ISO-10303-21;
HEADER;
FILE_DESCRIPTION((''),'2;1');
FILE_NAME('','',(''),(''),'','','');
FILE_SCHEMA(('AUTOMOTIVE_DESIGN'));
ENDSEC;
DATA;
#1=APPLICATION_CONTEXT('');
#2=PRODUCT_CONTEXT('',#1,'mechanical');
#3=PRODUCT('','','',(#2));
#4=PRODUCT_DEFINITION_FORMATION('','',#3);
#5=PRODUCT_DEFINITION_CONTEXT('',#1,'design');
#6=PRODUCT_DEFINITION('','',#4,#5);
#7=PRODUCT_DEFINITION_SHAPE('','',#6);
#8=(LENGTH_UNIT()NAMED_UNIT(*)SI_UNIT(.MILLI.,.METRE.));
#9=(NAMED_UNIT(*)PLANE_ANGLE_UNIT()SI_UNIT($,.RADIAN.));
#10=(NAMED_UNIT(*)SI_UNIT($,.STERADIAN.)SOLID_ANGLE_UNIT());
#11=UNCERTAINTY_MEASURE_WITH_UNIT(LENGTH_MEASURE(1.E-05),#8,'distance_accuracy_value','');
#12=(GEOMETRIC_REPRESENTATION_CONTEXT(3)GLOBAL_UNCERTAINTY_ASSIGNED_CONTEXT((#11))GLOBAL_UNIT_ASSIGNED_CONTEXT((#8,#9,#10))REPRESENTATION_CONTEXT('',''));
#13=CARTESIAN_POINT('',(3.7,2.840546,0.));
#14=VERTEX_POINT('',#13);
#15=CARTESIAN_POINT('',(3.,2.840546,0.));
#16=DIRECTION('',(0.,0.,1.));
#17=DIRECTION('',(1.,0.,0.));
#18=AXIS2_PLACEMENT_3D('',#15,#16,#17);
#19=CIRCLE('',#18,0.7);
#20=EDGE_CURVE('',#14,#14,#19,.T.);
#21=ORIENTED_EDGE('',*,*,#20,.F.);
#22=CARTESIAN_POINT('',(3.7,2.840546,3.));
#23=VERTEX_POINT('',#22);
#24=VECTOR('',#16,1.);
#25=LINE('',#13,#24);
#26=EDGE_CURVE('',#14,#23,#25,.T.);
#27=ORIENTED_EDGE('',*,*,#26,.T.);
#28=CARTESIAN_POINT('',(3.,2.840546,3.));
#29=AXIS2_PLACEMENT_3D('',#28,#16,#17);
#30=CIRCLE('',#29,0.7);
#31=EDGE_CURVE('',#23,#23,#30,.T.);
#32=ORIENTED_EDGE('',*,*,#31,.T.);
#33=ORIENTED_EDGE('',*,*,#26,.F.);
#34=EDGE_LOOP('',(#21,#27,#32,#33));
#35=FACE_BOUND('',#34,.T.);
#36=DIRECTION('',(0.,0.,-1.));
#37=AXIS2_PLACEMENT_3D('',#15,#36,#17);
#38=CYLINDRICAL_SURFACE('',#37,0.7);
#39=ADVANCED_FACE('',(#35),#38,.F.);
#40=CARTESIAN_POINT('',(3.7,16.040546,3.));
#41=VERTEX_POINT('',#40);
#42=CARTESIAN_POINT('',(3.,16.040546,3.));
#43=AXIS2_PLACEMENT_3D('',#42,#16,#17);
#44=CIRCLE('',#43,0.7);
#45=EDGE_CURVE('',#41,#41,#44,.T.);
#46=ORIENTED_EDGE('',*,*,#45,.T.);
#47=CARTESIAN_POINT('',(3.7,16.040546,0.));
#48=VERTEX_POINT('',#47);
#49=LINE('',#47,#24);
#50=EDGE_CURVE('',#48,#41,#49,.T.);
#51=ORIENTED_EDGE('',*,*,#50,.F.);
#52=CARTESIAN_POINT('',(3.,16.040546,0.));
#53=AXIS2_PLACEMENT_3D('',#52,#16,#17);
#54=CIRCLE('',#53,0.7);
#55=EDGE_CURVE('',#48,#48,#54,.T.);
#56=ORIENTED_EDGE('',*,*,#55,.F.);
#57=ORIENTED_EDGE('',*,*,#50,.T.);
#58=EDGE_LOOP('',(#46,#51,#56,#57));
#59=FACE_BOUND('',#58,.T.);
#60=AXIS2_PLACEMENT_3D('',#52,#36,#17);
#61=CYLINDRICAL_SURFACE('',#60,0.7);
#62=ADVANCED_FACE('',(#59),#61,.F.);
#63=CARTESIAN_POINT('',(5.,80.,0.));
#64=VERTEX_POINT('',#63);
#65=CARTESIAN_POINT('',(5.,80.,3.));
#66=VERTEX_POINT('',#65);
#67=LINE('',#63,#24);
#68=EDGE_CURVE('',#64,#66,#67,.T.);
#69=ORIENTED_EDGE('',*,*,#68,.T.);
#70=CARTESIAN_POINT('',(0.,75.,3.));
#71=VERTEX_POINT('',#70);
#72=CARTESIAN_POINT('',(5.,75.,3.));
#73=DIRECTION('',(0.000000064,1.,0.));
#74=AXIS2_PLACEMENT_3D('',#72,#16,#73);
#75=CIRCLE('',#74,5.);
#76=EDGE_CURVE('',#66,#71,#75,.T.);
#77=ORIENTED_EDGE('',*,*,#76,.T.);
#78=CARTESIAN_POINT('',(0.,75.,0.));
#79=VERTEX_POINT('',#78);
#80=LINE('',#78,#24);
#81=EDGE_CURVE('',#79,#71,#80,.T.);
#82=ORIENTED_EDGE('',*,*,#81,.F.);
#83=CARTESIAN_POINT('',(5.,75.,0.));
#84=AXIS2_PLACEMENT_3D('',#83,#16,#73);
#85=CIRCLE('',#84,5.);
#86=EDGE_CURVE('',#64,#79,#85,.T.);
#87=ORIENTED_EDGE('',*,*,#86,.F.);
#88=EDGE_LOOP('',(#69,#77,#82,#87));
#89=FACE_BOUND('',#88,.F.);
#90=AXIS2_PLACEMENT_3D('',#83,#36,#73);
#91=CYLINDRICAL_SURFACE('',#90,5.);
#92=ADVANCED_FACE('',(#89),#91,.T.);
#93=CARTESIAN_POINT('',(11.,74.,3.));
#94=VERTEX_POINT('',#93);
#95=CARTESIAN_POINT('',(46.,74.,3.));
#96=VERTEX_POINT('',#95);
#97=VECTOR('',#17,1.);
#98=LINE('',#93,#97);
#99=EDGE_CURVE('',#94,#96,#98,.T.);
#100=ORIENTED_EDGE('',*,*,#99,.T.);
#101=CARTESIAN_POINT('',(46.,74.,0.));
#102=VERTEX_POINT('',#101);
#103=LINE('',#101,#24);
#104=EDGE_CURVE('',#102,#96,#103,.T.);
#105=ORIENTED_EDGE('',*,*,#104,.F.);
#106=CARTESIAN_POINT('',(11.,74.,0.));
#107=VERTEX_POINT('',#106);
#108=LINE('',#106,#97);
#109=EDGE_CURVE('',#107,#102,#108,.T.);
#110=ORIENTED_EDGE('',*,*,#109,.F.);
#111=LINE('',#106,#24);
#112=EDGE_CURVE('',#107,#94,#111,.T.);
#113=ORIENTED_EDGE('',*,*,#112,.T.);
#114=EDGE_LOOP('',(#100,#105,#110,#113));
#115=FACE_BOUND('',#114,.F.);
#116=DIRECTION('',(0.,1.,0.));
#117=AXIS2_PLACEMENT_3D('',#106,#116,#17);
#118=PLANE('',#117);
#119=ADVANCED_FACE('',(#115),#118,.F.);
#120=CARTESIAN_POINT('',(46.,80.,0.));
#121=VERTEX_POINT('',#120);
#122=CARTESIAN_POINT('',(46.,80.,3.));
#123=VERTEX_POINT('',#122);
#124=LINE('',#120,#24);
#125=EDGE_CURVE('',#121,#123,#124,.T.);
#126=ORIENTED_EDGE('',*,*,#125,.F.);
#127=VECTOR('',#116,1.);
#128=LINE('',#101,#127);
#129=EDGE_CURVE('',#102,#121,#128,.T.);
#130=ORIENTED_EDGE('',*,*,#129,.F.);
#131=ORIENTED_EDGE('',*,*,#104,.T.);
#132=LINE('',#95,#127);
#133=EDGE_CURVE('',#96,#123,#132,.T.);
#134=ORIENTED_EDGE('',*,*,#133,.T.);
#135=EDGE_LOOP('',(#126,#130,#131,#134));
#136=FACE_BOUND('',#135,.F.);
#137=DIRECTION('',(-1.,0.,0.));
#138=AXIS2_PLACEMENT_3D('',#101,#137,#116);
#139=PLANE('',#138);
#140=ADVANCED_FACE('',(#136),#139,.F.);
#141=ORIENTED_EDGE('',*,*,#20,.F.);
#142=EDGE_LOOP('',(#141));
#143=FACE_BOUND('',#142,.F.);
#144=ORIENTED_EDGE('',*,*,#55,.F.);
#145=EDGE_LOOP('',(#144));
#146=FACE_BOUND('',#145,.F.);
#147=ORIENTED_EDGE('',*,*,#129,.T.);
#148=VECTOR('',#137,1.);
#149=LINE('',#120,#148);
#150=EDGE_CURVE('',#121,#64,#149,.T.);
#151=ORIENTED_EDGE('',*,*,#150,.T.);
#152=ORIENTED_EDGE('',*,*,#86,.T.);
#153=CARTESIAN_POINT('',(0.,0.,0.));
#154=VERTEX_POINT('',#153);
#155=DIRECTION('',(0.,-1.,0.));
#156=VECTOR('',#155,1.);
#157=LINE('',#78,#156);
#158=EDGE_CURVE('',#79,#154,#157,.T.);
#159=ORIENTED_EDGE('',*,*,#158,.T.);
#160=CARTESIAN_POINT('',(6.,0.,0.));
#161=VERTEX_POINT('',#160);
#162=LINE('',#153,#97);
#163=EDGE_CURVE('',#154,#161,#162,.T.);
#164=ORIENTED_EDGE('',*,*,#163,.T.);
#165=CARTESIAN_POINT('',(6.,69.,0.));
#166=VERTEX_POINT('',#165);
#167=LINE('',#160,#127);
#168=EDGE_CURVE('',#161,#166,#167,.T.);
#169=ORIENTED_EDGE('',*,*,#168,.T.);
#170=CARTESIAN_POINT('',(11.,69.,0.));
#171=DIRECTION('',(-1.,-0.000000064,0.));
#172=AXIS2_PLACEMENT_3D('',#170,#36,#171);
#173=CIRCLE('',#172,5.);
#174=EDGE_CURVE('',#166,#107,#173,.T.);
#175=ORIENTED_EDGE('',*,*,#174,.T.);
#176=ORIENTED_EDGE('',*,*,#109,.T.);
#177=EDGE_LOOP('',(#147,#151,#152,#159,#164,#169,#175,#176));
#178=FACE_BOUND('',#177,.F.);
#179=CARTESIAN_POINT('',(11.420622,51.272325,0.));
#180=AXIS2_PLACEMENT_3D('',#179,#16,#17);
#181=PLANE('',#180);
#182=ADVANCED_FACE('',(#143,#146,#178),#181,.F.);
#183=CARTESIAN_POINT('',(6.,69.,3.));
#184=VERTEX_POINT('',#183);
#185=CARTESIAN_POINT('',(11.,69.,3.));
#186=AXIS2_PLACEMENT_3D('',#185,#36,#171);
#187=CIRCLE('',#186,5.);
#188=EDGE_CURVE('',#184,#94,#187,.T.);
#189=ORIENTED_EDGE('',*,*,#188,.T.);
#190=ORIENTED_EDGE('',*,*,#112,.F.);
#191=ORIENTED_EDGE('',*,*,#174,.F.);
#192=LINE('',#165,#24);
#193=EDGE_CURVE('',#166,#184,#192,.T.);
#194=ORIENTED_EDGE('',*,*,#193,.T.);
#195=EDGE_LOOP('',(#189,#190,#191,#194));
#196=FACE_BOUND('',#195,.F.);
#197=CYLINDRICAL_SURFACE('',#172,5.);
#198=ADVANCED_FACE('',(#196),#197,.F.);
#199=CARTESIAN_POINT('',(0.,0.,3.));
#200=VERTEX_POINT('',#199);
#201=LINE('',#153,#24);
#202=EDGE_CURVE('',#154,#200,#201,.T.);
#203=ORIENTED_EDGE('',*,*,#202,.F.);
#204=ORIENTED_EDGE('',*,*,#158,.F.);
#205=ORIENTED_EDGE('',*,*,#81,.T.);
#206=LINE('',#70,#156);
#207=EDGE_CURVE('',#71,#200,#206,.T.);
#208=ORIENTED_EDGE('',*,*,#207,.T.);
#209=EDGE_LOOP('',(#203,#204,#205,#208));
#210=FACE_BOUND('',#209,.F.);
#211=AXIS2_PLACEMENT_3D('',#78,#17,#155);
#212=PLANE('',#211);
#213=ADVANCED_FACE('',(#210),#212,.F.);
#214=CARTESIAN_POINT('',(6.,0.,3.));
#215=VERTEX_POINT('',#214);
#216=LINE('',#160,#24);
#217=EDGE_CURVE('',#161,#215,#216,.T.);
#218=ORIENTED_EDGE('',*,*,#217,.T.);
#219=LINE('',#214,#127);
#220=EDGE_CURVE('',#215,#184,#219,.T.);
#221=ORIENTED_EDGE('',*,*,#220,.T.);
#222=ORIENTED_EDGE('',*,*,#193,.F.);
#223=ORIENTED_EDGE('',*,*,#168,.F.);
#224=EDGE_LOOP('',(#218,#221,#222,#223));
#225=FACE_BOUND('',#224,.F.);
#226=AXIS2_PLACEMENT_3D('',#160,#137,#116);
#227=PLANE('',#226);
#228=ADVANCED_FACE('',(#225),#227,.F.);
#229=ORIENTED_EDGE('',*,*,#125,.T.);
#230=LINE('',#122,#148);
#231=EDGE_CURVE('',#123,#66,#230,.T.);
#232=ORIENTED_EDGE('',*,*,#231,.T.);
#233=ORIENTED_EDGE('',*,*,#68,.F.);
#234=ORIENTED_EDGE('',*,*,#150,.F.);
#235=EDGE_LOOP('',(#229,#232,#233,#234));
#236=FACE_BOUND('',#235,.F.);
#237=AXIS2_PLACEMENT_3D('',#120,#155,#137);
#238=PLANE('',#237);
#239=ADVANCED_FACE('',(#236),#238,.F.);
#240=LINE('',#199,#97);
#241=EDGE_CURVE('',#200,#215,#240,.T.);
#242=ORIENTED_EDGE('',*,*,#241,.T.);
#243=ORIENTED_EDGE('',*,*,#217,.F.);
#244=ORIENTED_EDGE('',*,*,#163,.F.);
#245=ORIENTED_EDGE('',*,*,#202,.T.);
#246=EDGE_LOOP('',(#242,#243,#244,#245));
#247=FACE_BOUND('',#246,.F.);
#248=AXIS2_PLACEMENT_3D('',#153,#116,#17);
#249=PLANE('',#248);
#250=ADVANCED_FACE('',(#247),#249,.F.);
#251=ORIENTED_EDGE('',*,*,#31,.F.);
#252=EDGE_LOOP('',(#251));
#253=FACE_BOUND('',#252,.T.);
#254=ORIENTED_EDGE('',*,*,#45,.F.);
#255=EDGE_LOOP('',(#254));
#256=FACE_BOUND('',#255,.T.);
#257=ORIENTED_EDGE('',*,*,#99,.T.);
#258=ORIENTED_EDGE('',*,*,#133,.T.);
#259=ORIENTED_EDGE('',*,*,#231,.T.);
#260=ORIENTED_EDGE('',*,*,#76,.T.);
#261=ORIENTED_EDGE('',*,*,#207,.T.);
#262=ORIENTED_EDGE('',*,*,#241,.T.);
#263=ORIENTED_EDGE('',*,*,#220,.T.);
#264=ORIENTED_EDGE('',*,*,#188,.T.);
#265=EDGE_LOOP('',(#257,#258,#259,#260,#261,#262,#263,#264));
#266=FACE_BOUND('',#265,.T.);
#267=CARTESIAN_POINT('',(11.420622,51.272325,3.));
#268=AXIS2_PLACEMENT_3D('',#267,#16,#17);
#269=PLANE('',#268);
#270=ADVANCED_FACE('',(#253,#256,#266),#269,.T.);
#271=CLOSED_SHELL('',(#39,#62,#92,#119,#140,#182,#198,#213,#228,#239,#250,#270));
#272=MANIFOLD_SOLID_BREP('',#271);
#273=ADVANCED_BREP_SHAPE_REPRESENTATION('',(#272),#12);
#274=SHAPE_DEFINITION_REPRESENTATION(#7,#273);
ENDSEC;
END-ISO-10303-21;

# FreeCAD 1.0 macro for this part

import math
import FreeCAD as App
import Part
import Sketcher

V = App.Vector

doc = App.newDocument("Part")
body = doc.addObject("PartDesign::Body", "Body")

sketch1 = body.newObject("Sketcher::SketchObject", "Sketch")
sketch1.AttachmentSupport = (doc.getObject("XY_Plane"), [""])
sketch1.MapMode = "FlatFace"
sketch1.addGeometry([
    Part.LineSegment(V(0, 75, 0), V(0, 0, 0)),
    Part.LineSegment(V(0, 0, 0), V(6, 0, 0)),
    Part.LineSegment(V(6, 0, 0), V(6, 69, 0)),
    Part.ArcOfCircle(Part.Circle(V(11, 69, 0), V(0, 0, 1), 5), math.radians(90), math.radians(180)),
    Part.LineSegment(V(11, 74, 0), V(46, 74, 0)),
    Part.LineSegment(V(46, 74, 0), V(46, 80, 0)),
    Part.LineSegment(V(46, 80, 0), V(5, 80, 0)),
    Part.ArcOfCircle(Part.Circle(V(5, 75, 0), V(0, 0, 1), 5), math.radians(90), math.radians(180)),
    Part.Circle(V(3, 2.8, 0), V(0, 0, 1), 0.7),
    Part.Circle(V(3, 16, 0), V(0, 0, 1), 0.7),
], False)
sketch1.addConstraint([
    Sketcher.Constraint("Coincident", 0, 2, 1, 1),
    Sketcher.Constraint("Coincident", 1, 2, 2, 1),
    Sketcher.Constraint("Tangent", 2, 2, 3, 2),
    Sketcher.Constraint("Tangent", 3, 1, 4, 1),
    Sketcher.Constraint("Coincident", 4, 2, 5, 1),
    Sketcher.Constraint("Coincident", 5, 2, 6, 1),
    Sketcher.Constraint("Tangent", 6, 2, 7, 1),
    Sketcher.Constraint("Tangent", 7, 2, 0, 1),
    Sketcher.Constraint("Vertical", 0),
    Sketcher.Constraint("Horizontal", 1),
    Sketcher.Constraint("Vertical", 2),
    Sketcher.Constraint("Horizontal", 4),
    Sketcher.Constraint("Vertical", 5),
    Sketcher.Constraint("Horizontal", 6),
    Sketcher.Constraint("Coincident", 0, 2, -1, 1),
    Sketcher.Constraint("Equal", 3, 7),
    Sketcher.Constraint("Equal", 8, 9),
    Sketcher.Constraint("Vertical", 8, 3, 9, 3),
    Sketcher.Constraint("Equal", 1, 5),
    Sketcher.Constraint("Radius", 3, 5.0),
    Sketcher.Constraint("Diameter", 8, 1.4),
    Sketcher.Constraint("DistanceX", 1, 1, 1, 2, 6.0),
    Sketcher.Constraint("DistanceX", 4, 1, 4, 2, 35.0),
    Sketcher.Constraint("DistanceY", 0, 2, 0, 1, 75.0),
    Sketcher.Constraint("DistanceX", -1, 1, 8, 3, 3.0),
    Sketcher.Constraint("DistanceY", 8, 3, 9, 3, 13.2),
    Sketcher.Constraint("DistanceY", -1, 1, 8, 3, 2.840546),
])
pad1 = body.newObject("PartDesign::Pad", "Pad")
pad1.Profile = sketch1
pad1.Length = 3

doc.recompute()
